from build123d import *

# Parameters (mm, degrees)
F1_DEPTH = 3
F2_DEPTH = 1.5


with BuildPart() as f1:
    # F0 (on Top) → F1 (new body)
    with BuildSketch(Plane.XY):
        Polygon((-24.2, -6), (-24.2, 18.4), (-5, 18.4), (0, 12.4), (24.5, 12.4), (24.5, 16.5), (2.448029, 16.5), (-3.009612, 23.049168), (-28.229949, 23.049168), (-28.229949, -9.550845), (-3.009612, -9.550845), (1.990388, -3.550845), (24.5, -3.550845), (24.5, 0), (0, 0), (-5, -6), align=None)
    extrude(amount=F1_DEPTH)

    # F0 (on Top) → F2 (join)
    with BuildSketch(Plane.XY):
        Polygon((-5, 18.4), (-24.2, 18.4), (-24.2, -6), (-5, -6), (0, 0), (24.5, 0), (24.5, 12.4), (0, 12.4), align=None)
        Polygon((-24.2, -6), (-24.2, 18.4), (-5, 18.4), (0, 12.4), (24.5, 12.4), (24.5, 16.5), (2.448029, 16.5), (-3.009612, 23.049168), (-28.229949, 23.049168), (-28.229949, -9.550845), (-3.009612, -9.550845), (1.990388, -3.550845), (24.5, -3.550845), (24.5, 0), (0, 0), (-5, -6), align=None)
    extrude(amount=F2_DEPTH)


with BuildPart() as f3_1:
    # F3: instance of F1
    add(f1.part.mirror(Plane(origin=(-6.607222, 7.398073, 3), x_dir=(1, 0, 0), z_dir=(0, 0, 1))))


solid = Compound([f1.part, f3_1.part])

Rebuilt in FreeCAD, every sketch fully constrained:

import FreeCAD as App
import Part
import Sketcher
Q = App.Units.Quantity


def add_polygon(sketch, points):
    """Adds a closed chain of lines whose ends are joined by coincident constraints."""
    first, n = sketch.GeometryCount, len(points)
    for a, b in zip(points, points[1:] + points[:1]):
        sketch.addGeometry(Part.LineSegment(App.Vector(*a, 0), App.Vector(*b, 0)), False)
    for i in range(n):
        sketch.addConstraint(Sketcher.Constraint("Coincident", first + i, 2, first + (i + 1) % n, 1))

doc = App.newDocument("Part")
params = doc.addObject("Spreadsheet::Sheet", "Params")
for row, (alias, value) in enumerate([
    ("sketch1_width", "19.2 mm"),
    ("sketch1_width2", "24.5 mm"),
    ("sketch1_height", "24.4 mm"),
    ("sketch1_height2", "4.1 mm"),
    ("pad1_length", "3 mm"),
    ("pad2_length", "1.5 mm"),
], start=1):
    params.set(f"A{row}", alias)
    params.set(f"B{row}", "=" + value)
    params.setAlias(f"B{row}", alias)

body = doc.addObject("PartDesign::Body", "Body")

# Sketch on XY plane
sketch1 = doc.addObject("Sketcher::SketchObject", "Sketch")
body.addObject(sketch1)
sketch1.AttachmentSupport = (doc.XY_Plane, [""])
sketch1.MapMode = "FlatFace"
add_polygon(sketch1, [(-24.2, -6), (-24.2, 18.4), (-5, 18.4), (0, 12.4), (24.5, 12.4), (24.5, 16.5), (2.4, 16.5), (-3, 23), (-28.2, 23), (-28.2, -9.6), (-3, -9.6), (2, -3.6), (24.5, -3.6), (24.5, 0), (0, 0), (-5, -6)])  # lines 0-15
sketch1.addConstraint([
    Sketcher.Constraint("Vertical", 0),
    Sketcher.Constraint("Horizontal", 1),
    Sketcher.Constraint("Horizontal", 3),
    Sketcher.Constraint("Vertical", 4),
    Sketcher.Constraint("Horizontal", 5),
    Sketcher.Constraint("Horizontal", 7),
    Sketcher.Constraint("Vertical", 8),
    Sketcher.Constraint("Horizontal", 9),
    Sketcher.Constraint("Horizontal", 11),
    Sketcher.Constraint("Vertical", 12),
    Sketcher.Constraint("Horizontal", 13),
    Sketcher.Constraint("Horizontal", 15),
    Sketcher.Constraint("Coincident", 13, 2, -1, 1),
    Sketcher.Constraint("PointOnObject", 2, 2, -2),
    Sketcher.Constraint("Parallel", 2, 6),
    Sketcher.Constraint("Parallel", 10, 14),
    Sketcher.Constraint("Vertical", 6, 2, 9, 2),
    Sketcher.Constraint("Vertical", 4, 2, 11, 2),
    Sketcher.Constraint("Vertical", 1, 2, 14, 2),
    Sketcher.Constraint("Equal", 2, 10),
    Sketcher.Constraint("Equal", 10, 14),
    Sketcher.Constraint("DistanceX", 1, 1, 1, 2, Q("19.2 mm")),
    Sketcher.Constraint("DistanceX", 3, 1, 3, 2, Q("24.5 mm")),
    Sketcher.Constraint("DistanceY", 0, 1, 0, 2, Q("24.4 mm")),
    Sketcher.Constraint("DistanceY", 4, 1, 4, 2, Q("4.1 mm")),
    Sketcher.Constraint("DistanceX", 1, 2, -1, 1, Q("5 mm")),
    Sketcher.Constraint("DistanceY", 14, 2, -1, 1, Q("6 mm")),
    Sketcher.Constraint("DistanceX", 5, 2, 5, 1, Q("22.051971 mm")),
    Sketcher.Constraint("DistanceX", 7, 2, 7, 1, Q("25.220337 mm")),
    Sketcher.Constraint("DistanceX", 11, 1, 11, 2, Q("22.509612 mm")),
    Sketcher.Constraint("DistanceY", 8, 2, 8, 1, Q("32.600013 mm")),
])
sketch1.setExpression("Constraints[37]", "Params.sketch1_width")
sketch1.setExpression("Constraints[38]", "Params.sketch1_width2")
sketch1.setExpression("Constraints[39]", "Params.sketch1_height")
sketch1.setExpression("Constraints[40]", "Params.sketch1_height2")
pad1 = doc.addObject("PartDesign::Pad", "Pad")
body.addObject(pad1)
pad1.Profile = sketch1
pad1.setExpression("Length", "Params.pad1_length")

# Sketch on XY plane
sketch2 = doc.addObject("Sketcher::SketchObject", "Sketch001")
body.addObject(sketch2)
sketch2.AttachmentSupport = (doc.XY_Plane, [""])
sketch2.MapMode = "FlatFace"
add_polygon(sketch2, [(24, 16), (2, 16), (-3, 23), (-28, 23), (-28, -10), (-3, -10), (2, -4), (24, -4)])  # lines 0-7
sketch2.addConstraint([
    Sketcher.Constraint("Horizontal", 0),
    Sketcher.Constraint("Horizontal", 2),
    Sketcher.Constraint("Vertical", 3),
    Sketcher.Constraint("Horizontal", 4),
    Sketcher.Constraint("Horizontal", 6),
    Sketcher.Constraint("Vertical", 7),
    Sketcher.Constraint("Vertical", 1, 2, 4, 2),
    Sketcher.Constraint("DistanceX", 4, 2, 5, 2, Q("5 mm")),
    Sketcher.Constraint("DistanceY", 4, 2, 5, 2, Q("6 mm")),
    Sketcher.Constraint("DistanceY", -1, 1, 0, 2, Q("16.5 mm")),
    Sketcher.Constraint("DistanceX", -1, 1, 6, 2, Q("24.5 mm")),
    Sketcher.Constraint("DistanceX", 0, 2, 0, 1, Q("22.051971 mm")),
    Sketcher.Constraint("DistanceX", 2, 2, 2, 1, Q("25.220337 mm")),
    Sketcher.Constraint("DistanceX", 6, 1, 6, 2, Q("22.509612 mm")),
    Sketcher.Constraint("DistanceY", 3, 2, 3, 1, Q("32.600013 mm")),
    Sketcher.Constraint("DistanceY", 7, 1, 7, 2, Q("20.050845 mm")),
])
pad2 = doc.addObject("PartDesign::Pad", "Pad001")
body.addObject(pad2)
pad2.Profile = sketch2
pad2.setExpression("Length", "Params.pad2_length")
body2 = doc.addObject("PartDesign::Body", "Body001")
doc.recompute()

mirroring = doc.addObject("Part::Mirroring", "Mirroring")
mirroring.Source = body
mirroring.Base = App.Vector(-6.607222, 7.398073, 3)
mirroring.Normal = App.Vector(0, 0, 1)
body2.BaseFeature = mirroring
doc.recompute()
mirroring.Visibility = False

doc.recompute()
